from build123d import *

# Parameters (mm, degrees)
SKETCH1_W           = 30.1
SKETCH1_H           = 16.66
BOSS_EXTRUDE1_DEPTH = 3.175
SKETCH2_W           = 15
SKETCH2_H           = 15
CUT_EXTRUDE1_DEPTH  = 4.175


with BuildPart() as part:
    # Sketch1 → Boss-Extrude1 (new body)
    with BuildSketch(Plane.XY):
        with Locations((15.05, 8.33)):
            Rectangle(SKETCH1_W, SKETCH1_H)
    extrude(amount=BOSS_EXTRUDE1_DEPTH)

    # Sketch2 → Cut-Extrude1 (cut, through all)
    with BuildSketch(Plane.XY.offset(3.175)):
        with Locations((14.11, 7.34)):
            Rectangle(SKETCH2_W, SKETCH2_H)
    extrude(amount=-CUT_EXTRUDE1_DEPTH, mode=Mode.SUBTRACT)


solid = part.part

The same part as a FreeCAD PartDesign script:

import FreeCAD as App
import Part
import Sketcher
from FreeCAD import Vector


def add_polygon(sketch, points):
    """Adds a closed chain of lines whose ends are joined by coincident constraints."""
    first, n = sketch.GeometryCount, len(points)
    for a, b in zip(points, points[1:] + points[:1]):
        sketch.addGeometry(Part.LineSegment(App.Vector(*a, 0), App.Vector(*b, 0)), False)
    for i in range(n):
        sketch.addConstraint(Sketcher.Constraint("Coincident", first + i, 2, first + (i + 1) % n, 1))

doc = App.newDocument("Part")
body = doc.addObject("PartDesign::Body", "Body")

sketch1 = body.newObject("Sketcher::SketchObject", "Sketch")
sketch1.AttachmentSupport = (doc.getObject("XY_Plane"), [""])
sketch1.MapMode = "FlatFace"
add_polygon(sketch1, [(0, 17), (0, 0), (30, 0), (30, 17)])
sketch1.addConstraint([
    Sketcher.Constraint("Vertical", 0),
    Sketcher.Constraint("Horizontal", 1),
    Sketcher.Constraint("Vertical", 2),
    Sketcher.Constraint("Horizontal", 3),
    Sketcher.Constraint("Coincident", 0, 2, -1, 1),
    Sketcher.Constraint("DistanceX", 1, 1, 1, 2, 30.1),
    Sketcher.Constraint("DistanceY", 0, 2, 0, 1, 16.66),
])
pad1 = body.newObject("PartDesign::Pad", "Pad")
pad1.Profile = sketch1
pad1.Length = 3.175

sketch2 = body.newObject("Sketcher::SketchObject", "Sketch001")
sketch2.AttachmentSupport = (doc.getObject("XY_Plane"), [""])
sketch2.MapMode = "FlatFace"
sketch2.AttachmentOffset = App.Placement(Vector(0, 0, 3.175), App.Rotation())
add_polygon(sketch2, [(7, 15), (7, 0), (22, 0), (22, 15)])
sketch2.addConstraint([
    Sketcher.Constraint("Vertical", 0),
    Sketcher.Constraint("Horizontal", 1),
    Sketcher.Constraint("Vertical", 2),
    Sketcher.Constraint("Horizontal", 3),
    Sketcher.Constraint("Equal", 3, 0),
    Sketcher.Constraint("DistanceX", 1, 1, 1, 2, 15.0),
    Sketcher.Constraint("DistanceX", -1, 1, 0, 2, 6.61),
    Sketcher.Constraint("DistanceY", 0, 2, -1, 1, 0.16),
])
pocket1 = body.newObject("PartDesign::Pocket", "Pocket")
pocket1.Profile = sketch2
pocket1.Type = "ThroughAll"

doc.recompute()
